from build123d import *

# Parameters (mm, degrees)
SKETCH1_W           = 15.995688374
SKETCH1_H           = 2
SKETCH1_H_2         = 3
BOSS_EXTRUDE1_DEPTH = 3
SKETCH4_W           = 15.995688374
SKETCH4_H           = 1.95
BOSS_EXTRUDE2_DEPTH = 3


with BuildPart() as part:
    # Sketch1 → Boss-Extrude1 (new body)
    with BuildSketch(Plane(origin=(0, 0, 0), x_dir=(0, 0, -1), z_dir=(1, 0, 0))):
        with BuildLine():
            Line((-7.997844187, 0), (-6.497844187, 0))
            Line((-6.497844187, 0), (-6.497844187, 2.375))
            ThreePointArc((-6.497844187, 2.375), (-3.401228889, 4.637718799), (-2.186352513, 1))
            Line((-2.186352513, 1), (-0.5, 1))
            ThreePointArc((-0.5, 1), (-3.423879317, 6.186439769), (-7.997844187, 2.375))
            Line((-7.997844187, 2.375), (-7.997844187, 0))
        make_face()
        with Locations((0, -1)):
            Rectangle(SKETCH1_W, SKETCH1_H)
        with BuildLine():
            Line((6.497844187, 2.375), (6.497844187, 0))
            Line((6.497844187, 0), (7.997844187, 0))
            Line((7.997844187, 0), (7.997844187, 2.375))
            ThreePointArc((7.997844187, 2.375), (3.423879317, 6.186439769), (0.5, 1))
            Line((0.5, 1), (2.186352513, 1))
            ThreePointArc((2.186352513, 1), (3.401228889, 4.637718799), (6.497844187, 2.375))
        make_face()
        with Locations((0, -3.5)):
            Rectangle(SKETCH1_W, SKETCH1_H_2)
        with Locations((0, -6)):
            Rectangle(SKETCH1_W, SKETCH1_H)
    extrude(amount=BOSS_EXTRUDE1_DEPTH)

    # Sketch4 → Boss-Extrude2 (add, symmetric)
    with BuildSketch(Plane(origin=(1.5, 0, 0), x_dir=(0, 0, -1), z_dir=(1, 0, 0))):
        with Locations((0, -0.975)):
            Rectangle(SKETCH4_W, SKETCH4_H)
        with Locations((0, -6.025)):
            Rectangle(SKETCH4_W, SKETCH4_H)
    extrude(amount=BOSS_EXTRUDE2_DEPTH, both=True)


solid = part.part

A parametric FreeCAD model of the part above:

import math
import FreeCAD as App
import Part
import Sketcher
from FreeCAD import Vector
Q = App.Units.Quantity


def add_polygon(sketch, points):
    """Adds a closed chain of lines whose ends are joined by coincident constraints."""
    first, n = sketch.GeometryCount, len(points)
    for a, b in zip(points, points[1:] + points[:1]):
        sketch.addGeometry(Part.LineSegment(App.Vector(*a, 0), App.Vector(*b, 0)), False)
    for i in range(n):
        sketch.addConstraint(Sketcher.Constraint("Coincident", first + i, 2, first + (i + 1) % n, 1))

doc = App.newDocument("Part")
body = doc.addObject("PartDesign::Body", "Body")

sketch1 = body.newObject("Sketcher::SketchObject", "Sketch")
sketch1.AttachmentSupport = (doc.getObject("YZ_Plane"), [""])
sketch1.MapMode = "FlatFace"
sketch1.addGeometry([
    Part.LineSegment(Vector(0, 6.5, 0), Vector(2.4, 6.5, 0)),
    Part.ArcOfCircle(Part.Circle(Vector(2.4, 4.1, 0), Vector(0, 0, 1), 2.4), math.radians(-125), math.radians(90)),
    Part.LineSegment(Vector(1, 2.2, 0), Vector(1, 0.5, 0)),
    Part.ArcOfCircle(Part.Circle(Vector(2.4, 4.1, 0), Vector(0, 0, 1), 3.9), math.radians(-111), math.radians(90)),
    Part.LineSegment(Vector(2.4, 8, 0), Vector(-7, 8, 0)),
    Part.LineSegment(Vector(-7, 8, 0), Vector(-7, -8, 0)),
    Part.LineSegment(Vector(-7, -8, 0), Vector(2.4, -8, 0)),
    Part.ArcOfCircle(Part.Circle(Vector(2.4, -4.1, 0), Vector(0, 0, 1), 3.9), math.radians(-90), math.radians(111)),
    Part.LineSegment(Vector(1, -0.5, 0), Vector(1, -2.2, 0)),
    Part.ArcOfCircle(Part.Circle(Vector(2.4, -4.1, 0), Vector(0, 0, 1), 2.4), math.radians(-90), math.radians(125)),
    Part.LineSegment(Vector(2.4, -6.5, 0), Vector(0, -6.5, 0)),
    Part.LineSegment(Vector(0, -6.5, 0), Vector(0, 6.5, 0)),
], False)
sketch1.addConstraint([
    Sketcher.Constraint("Tangent", 0, 2, 1, 2),
    Sketcher.Constraint("Coincident", 1, 1, 2, 1),
    Sketcher.Constraint("Coincident", 2, 2, 3, 1),
    Sketcher.Constraint("Tangent", 3, 2, 4, 1),
    Sketcher.Constraint("Coincident", 4, 2, 5, 1),
    Sketcher.Constraint("Coincident", 5, 2, 6, 1),
    Sketcher.Constraint("Tangent", 6, 2, 7, 1),
    Sketcher.Constraint("Coincident", 7, 2, 8, 1),
    Sketcher.Constraint("Coincident", 8, 2, 9, 2),
    Sketcher.Constraint("Tangent", 9, 1, 10, 1),
    Sketcher.Constraint("Coincident", 10, 2, 11, 1),
    Sketcher.Constraint("Coincident", 11, 2, 0, 1),
    Sketcher.Constraint("Horizontal", 0),
    Sketcher.Constraint("Vertical", 2),
    Sketcher.Constraint("Horizontal", 4),
    Sketcher.Constraint("Vertical", 5),
    Sketcher.Constraint("Horizontal", 6),
    Sketcher.Constraint("Vertical", 8),
    Sketcher.Constraint("Horizontal", 10),
    Sketcher.Constraint("Vertical", 11),
    Sketcher.Constraint("Coincident", 3, 3, 1, 3),
    Sketcher.Constraint("Coincident", 9, 3, 7, 3),
    Sketcher.Constraint("Equal", 3, 7),
    Sketcher.Constraint("Equal", 1, 9),
    Sketcher.Constraint("Symmetric", 10, 2, 11, 2, -1, 1),
    Sketcher.Constraint("Symmetric", 2, 2, 7, 2, -1),
    Sketcher.Constraint("DistanceX", -1, 1, 1, 1, Q("1 mm")),
    Sketcher.Constraint("DistanceX", 4, 2, -1, 1, Q("7 mm")),
    Sketcher.Constraint("Radius", 1, Q("2.375 mm")),
    Sketcher.Constraint("Radius", 3, Q("3.875 mm")),
    Sketcher.Constraint("DistanceY", 7, 2, 2, 2, Q("1 mm")),
    Sketcher.Constraint("DistanceX", 0, 1, 0, 2, Q("2.375 mm")),
])
pad1 = body.newObject("PartDesign::Pad", "Pad")
pad1.Profile = sketch1
pad1.Length = 3

sketch2 = body.newObject("Sketcher::SketchObject", "Sketch001")
sketch2.AttachmentSupport = (doc.getObject("YZ_Plane"), [""])
sketch2.MapMode = "FlatFace"
sketch2.AttachmentOffset = App.Placement(Vector(0, 0, 1.5), App.Rotation())
add_polygon(sketch2, [(0, 8), (-1.9, 8), (-1.9, -8), (0, -8)])
add_polygon(sketch2, [(-5, 8), (-7, 8), (-7, -8), (-5, -8)])
sketch2.addConstraint([
    Sketcher.Constraint("Horizontal", 0),
    Sketcher.Constraint("Vertical", 1),
    Sketcher.Constraint("Horizontal", 2),
    Sketcher.Constraint("Vertical", 3),
    Sketcher.Constraint("Horizontal", 4),
    Sketcher.Constraint("Vertical", 5),
    Sketcher.Constraint("Horizontal", 6),
    Sketcher.Constraint("Vertical", 7),
    Sketcher.Constraint("Symmetric", 2, 2, 3, 2, -1, 1),
    Sketcher.Constraint("Horizontal", 3, 2, 4, 2),
    Sketcher.Constraint("Horizontal", 2, 2, 5, 2),
    Sketcher.Constraint("Equal", 2, 4),
    Sketcher.Constraint("DistanceX", 4, 2, -1, 1, Q("7 mm")),
    Sketcher.Constraint("DistanceX", 0, 2, 0, 1, Q("1.95 mm")),
    Sketcher.Constraint("DistanceY", 1, 2, 1, 1, Q("15.995688 mm")),
])
pad2 = body.newObject("PartDesign::Pad", "Pad001")
pad2.Profile = sketch2
pad2.Length = 6
pad2.Midplane = True

doc.recompute()
